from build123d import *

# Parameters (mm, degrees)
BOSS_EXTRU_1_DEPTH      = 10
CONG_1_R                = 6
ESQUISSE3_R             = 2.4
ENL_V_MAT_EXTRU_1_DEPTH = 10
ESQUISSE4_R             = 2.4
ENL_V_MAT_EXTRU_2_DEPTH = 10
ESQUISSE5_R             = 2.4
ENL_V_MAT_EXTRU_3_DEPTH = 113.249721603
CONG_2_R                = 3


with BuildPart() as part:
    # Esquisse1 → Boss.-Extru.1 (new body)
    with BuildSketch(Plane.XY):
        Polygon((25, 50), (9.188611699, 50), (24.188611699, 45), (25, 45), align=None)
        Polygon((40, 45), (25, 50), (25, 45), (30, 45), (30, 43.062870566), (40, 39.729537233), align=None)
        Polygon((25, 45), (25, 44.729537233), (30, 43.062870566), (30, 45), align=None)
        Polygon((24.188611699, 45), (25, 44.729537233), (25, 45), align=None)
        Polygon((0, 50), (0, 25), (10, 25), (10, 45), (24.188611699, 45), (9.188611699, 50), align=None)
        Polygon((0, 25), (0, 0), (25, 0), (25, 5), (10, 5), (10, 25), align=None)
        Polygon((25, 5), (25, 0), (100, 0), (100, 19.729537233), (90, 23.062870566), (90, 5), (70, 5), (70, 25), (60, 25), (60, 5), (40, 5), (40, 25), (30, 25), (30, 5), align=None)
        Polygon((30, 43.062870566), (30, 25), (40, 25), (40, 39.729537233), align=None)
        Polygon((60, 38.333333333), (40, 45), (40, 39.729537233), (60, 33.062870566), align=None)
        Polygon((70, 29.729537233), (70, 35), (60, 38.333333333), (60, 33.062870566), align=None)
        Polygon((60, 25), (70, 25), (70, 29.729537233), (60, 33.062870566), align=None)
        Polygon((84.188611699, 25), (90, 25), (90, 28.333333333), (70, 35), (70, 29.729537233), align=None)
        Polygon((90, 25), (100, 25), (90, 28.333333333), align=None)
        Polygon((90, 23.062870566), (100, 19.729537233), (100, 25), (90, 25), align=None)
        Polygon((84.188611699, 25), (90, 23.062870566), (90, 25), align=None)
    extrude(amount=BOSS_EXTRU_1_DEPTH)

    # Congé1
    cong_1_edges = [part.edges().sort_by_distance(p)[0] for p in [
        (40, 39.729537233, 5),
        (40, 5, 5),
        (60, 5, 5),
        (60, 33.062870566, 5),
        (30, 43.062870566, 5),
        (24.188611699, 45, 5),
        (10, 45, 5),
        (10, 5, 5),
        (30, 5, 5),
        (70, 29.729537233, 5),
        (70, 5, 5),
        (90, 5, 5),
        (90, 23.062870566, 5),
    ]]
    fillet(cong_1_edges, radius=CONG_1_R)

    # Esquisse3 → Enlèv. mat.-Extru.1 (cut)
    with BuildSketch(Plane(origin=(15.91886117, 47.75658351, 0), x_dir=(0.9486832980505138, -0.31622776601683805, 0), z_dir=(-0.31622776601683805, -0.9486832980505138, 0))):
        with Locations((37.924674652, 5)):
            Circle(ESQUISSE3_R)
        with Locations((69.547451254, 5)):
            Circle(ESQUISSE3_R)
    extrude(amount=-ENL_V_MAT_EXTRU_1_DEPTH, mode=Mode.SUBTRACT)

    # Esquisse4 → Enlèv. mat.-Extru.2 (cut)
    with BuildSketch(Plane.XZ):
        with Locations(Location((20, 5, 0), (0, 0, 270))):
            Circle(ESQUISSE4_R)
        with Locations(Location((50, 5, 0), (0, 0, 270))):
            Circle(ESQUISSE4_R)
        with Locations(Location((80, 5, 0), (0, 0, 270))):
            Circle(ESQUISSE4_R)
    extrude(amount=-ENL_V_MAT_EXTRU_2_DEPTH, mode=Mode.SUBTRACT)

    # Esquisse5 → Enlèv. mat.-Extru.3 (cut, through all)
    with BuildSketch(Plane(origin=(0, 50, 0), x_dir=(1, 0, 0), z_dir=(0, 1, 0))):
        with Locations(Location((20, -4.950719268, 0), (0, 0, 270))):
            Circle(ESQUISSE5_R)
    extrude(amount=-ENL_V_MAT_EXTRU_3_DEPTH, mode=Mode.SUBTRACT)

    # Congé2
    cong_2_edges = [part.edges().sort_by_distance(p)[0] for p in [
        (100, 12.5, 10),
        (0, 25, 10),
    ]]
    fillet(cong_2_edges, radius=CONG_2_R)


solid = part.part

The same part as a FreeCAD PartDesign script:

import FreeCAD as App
import Part
import Sketcher
from FreeCAD import Vector
Q = App.Units.Quantity


def edges_at(feature, points):
    """Names of the edges that pass closest to the given points."""
    edges = feature.Shape.Edges
    near = lambda p: min(range(len(edges)), key=lambda i: edges[i].distToShape(Part.Vertex(*p))[0])
    return sorted({f"Edge{near(p) + 1}" for p in points})

doc = App.newDocument("Part")
body = doc.addObject("PartDesign::Body", "Body")

# Sketch on XY plane
sketch1 = doc.addObject("Sketcher::SketchObject", "Sketch")
body.addObject(sketch1)
sketch1.AttachmentSupport = (doc.XY_Plane, [""])
sketch1.MapMode = "FlatFace"
sketch1.addGeometry(Part.LineSegment(Vector(25, 50, 0), Vector(0, 50, 0)), False)
sketch1.addGeometry(Part.LineSegment(Vector(0, 50, 0), Vector(0, 0, 0)), False)
sketch1.addGeometry(Part.LineSegment(Vector(0, 0, 0), Vector(100, 0, 0)), False)
sketch1.addGeometry(Part.LineSegment(Vector(100, 0, 0), Vector(100, 25, 0)), False)
sketch1.addGeometry(Part.LineSegment(Vector(100, 25, 0), Vector(90, 28.333333, 0)), False)
sketch1.addGeometry(Part.LineSegment(Vector(90, 28.333333, 0), Vector(70, 35, 0)), False)
sketch1.addGeometry(Part.LineSegment(Vector(70, 35, 0), Vector(60, 38.333333, 0)), False)
sketch1.addGeometry(Part.LineSegment(Vector(60, 38.333333, 0), Vector(40, 45, 0)), False)
sketch1.addGeometry(Part.LineSegment(Vector(40, 45, 0), Vector(25, 50, 0)), False)
sketch1.addGeometry(Part.LineSegment(Vector(90, 5, 0), Vector(70, 5, 0)), False)
sketch1.addGeometry(Part.LineSegment(Vector(70, 5, 0), Vector(70, 29.729537, 0)), False)
sketch1.addGeometry(Part.LineSegment(Vector(70, 29.729537, 0), Vector(84.188612, 25, 0)), False)
sketch1.addGeometry(Part.LineSegment(Vector(84.188612, 25, 0), Vector(90, 23.062871, 0)), False)
sketch1.addGeometry(Part.LineSegment(Vector(90, 23.062871, 0), Vector(90, 5, 0)), False)
sketch1.addGeometry(Part.LineSegment(Vector(60, 5, 0), Vector(40, 5, 0)), False)
sketch1.addGeometry(Part.LineSegment(Vector(40, 5, 0), Vector(40, 39.729537, 0)), False)
sketch1.addGeometry(Part.LineSegment(Vector(40, 39.729537, 0), Vector(60, 33.062871, 0)), False)
sketch1.addGeometry(Part.LineSegment(Vector(60, 33.062871, 0), Vector(60, 5, 0)), False)
sketch1.addGeometry(Part.LineSegment(Vector(30, 5, 0), Vector(10, 5, 0)), False)
sketch1.addGeometry(Part.LineSegment(Vector(10, 5, 0), Vector(10, 45, 0)), False)
sketch1.addGeometry(Part.LineSegment(Vector(10, 45, 0), Vector(24.188612, 45, 0)), False)
sketch1.addGeometry(Part.LineSegment(Vector(24.188612, 45, 0), Vector(25, 44.729537, 0)), False)
sketch1.addGeometry(Part.LineSegment(Vector(25, 44.729537, 0), Vector(30, 43.062871, 0)), False)
sketch1.addGeometry(Part.LineSegment(Vector(30, 43.062871, 0), Vector(30, 5, 0)), False)
sketch1.addConstraint(Sketcher.Constraint("Coincident", 0, 2, 1, 1))
sketch1.addConstraint(Sketcher.Constraint("Coincident", 1, 2, 2, 1))
sketch1.addConstraint(Sketcher.Constraint("Coincident", 2, 2, 3, 1))
sketch1.addConstraint(Sketcher.Constraint("Coincident", 3, 2, 4, 1))
sketch1.addConstraint(Sketcher.Constraint("Coincident", 4, 2, 5, 1))
sketch1.addConstraint(Sketcher.Constraint("Coincident", 5, 2, 6, 1))
sketch1.addConstraint(Sketcher.Constraint("Coincident", 6, 2, 7, 1))
sketch1.addConstraint(Sketcher.Constraint("Coincident", 7, 2, 8, 1))
sketch1.addConstraint(Sketcher.Constraint("Coincident", 8, 2, 0, 1))
sketch1.addConstraint(Sketcher.Constraint("Coincident", 9, 2, 10, 1))
sketch1.addConstraint(Sketcher.Constraint("Coincident", 10, 2, 11, 1))
sketch1.addConstraint(Sketcher.Constraint("Coincident", 11, 2, 12, 1))
sketch1.addConstraint(Sketcher.Constraint("Coincident", 12, 2, 13, 1))
sketch1.addConstraint(Sketcher.Constraint("Coincident", 13, 2, 9, 1))
sketch1.addConstraint(Sketcher.Constraint("Coincident", 14, 2, 15, 1))
sketch1.addConstraint(Sketcher.Constraint("Coincident", 15, 2, 16, 1))
sketch1.addConstraint(Sketcher.Constraint("Coincident", 16, 2, 17, 1))
sketch1.addConstraint(Sketcher.Constraint("Coincident", 17, 2, 14, 1))
sketch1.addConstraint(Sketcher.Constraint("Coincident", 18, 2, 19, 1))
sketch1.addConstraint(Sketcher.Constraint("Coincident", 19, 2, 20, 1))
sketch1.addConstraint(Sketcher.Constraint("Coincident", 20, 2, 21, 1))
sketch1.addConstraint(Sketcher.Constraint("Coincident", 21, 2, 22, 1))
sketch1.addConstraint(Sketcher.Constraint("Coincident", 22, 2, 23, 1))
sketch1.addConstraint(Sketcher.Constraint("Coincident", 23, 2, 18, 1))
sketch1.addConstraint(Sketcher.Constraint("Horizontal", 0))
sketch1.addConstraint(Sketcher.Constraint("Vertical", 1))
sketch1.addConstraint(Sketcher.Constraint("Horizontal", 2))
sketch1.addConstraint(Sketcher.Constraint("Vertical", 3))
sketch1.addConstraint(Sketcher.Constraint("Horizontal", 9))
sketch1.addConstraint(Sketcher.Constraint("Vertical", 10))
sketch1.addConstraint(Sketcher.Constraint("Vertical", 13))
sketch1.addConstraint(Sketcher.Constraint("Horizontal", 14))
sketch1.addConstraint(Sketcher.Constraint("Vertical", 15))
sketch1.addConstraint(Sketcher.Constraint("Vertical", 17))
sketch1.addConstraint(Sketcher.Constraint("Horizontal", 18))
sketch1.addConstraint(Sketcher.Constraint("Vertical", 19))
sketch1.addConstraint(Sketcher.Constraint("Horizontal", 20))
sketch1.addConstraint(Sketcher.Constraint("Vertical", 23))
sketch1.addConstraint(Sketcher.Constraint("Coincident", 1, 2, -1, 1))
sketch1.addConstraint(Sketcher.Constraint("Parallel", 4, 5))
sketch1.addConstraint(Sketcher.Constraint("Parallel", 5, 6))
sketch1.addConstraint(Sketcher.Constraint("Parallel", 6, 7))
sketch1.addConstraint(Sketcher.Constraint("Parallel", 7, 8))
sketch1.addConstraint(Sketcher.Constraint("Parallel", 8, 11))
sketch1.addConstraint(Sketcher.Constraint("Parallel", 11, 12))
sketch1.addConstraint(Sketcher.Constraint("Parallel", 12, 16))
sketch1.addConstraint(Sketcher.Constraint("Parallel", 16, 21))
sketch1.addConstraint(Sketcher.Constraint("Parallel", 21, 22))
sketch1.addConstraint(Sketcher.Constraint("Horizontal", 3, 2, 11, 2))
sketch1.addConstraint(Sketcher.Constraint("Horizontal", 13, 2, 14, 2))
sketch1.addConstraint(Sketcher.Constraint("Horizontal", 17, 2, 18, 2))
sketch1.addConstraint(Sketcher.Constraint("Horizontal", 7, 2, 19, 2))
sketch1.addConstraint(Sketcher.Constraint("Vertical", 5, 2, 9, 2))
sketch1.addConstraint(Sketcher.Constraint("Vertical", 4, 2, 12, 2))
sketch1.addConstraint(Sketcher.Constraint("Vertical", 7, 2, 14, 2))
sketch1.addConstraint(Sketcher.Constraint("Vertical", 6, 2, 16, 2))
sketch1.addConstraint(Sketcher.Constraint("Vertical", 8, 2, 21, 2))
sketch1.addConstraint(Sketcher.Constraint("Equal", 9, 14))
sketch1.addConstraint(Sketcher.Constraint("Equal", 14, 18))
sketch1.addConstraint(Sketcher.Constraint("Equal", 0, 3))
sketch1.addConstraint(Sketcher.Constraint("Equal", 4, 6))
sketch1.addConstraint(Sketcher.Constraint("DistanceX", 0, 2, 0, 1, Q("25 mm")))
sketch1.addConstraint(Sketcher.Constraint("DistanceX", 2, 1, 2, 2, Q("100 mm")))
sketch1.addConstraint(Sketcher.Constraint("DistanceX", 9, 2, 9, 1, Q("20 mm")))
sketch1.addConstraint(Sketcher.Constraint("DistanceY", 1, 2, 1, 1, Q("50 mm")))
sketch1.addConstraint(Sketcher.Constraint("DistanceY", 19, 1, 19, 2, Q("40 mm")))
sketch1.addConstraint(Sketcher.Constraint("DistanceX", -1, 1, 4, 2, Q("90 mm")))
sketch1.addConstraint(Sketcher.Constraint("DistanceX", -1, 1, 18, 2, Q("10 mm")))
sketch1.addConstraint(Sketcher.Constraint("DistanceY", 10, 2, 15, 2, Q("10 mm")))
sketch1.addConstraint(Sketcher.Constraint("DistanceY", 15, 2, 21, 2, Q("5 mm")))
sketch1.addConstraint(Sketcher.Constraint("DistanceX", 20, 1, 20, 2, Q("14.188612 mm")))
pad1 = doc.addObject("PartDesign::Pad", "Pad")
body.addObject(pad1)
pad1.Profile = sketch1
pad1.Length = 10
doc.recompute()

fillet = doc.addObject("PartDesign::Fillet", "Fillet")
body.addObject(fillet)
fillet.Base = (pad1, edges_at(pad1, [
    (40, 39.73, 5),
    (40, 5, 5),
    (60, 5, 5),
    (60, 33.063, 5),
    (30, 43.063, 5),
    (24.189, 45, 5),
    (10, 45, 5),
    (10, 5, 5),
    (30, 5, 5),
    (70, 29.73, 5),
    (70, 5, 5),
    (90, 5, 5),
    (90, 23.063, 5),
]))
fillet.Radius = 6

# Sketch on an angled plane
sketch2 = doc.addObject("Sketcher::SketchObject", "Sketch001")
body.addObject(sketch2)
sketch2.Placement = App.Placement(Vector(15.918861, 47.756584, 0), App.Rotation(Vector(0.948683298, -0.316227766, 0), Vector(0, 0, 1), Vector(-0.316227766, -0.948683298, 0), "ZXY"))
sketch2.addGeometry(Part.Circle(Vector(37.924675, 5, 0), Vector(0, 0, 1), 2.4), False)
sketch2.addGeometry(Part.Circle(Vector(69.547451, 5, 0), Vector(0, 0, 1), 2.4), False)
sketch2.addConstraint(Sketcher.Constraint("Equal", 0, 1))
sketch2.addConstraint(Sketcher.Constraint("Horizontal", 0, 3, 1, 3))
sketch2.addConstraint(Sketcher.Constraint("Diameter", 0, Q("4.8 mm")))
sketch2.addConstraint(Sketcher.Constraint("DistanceY", -1, 1, 0, 3, Q("5 mm")))
sketch2.addConstraint(Sketcher.Constraint("DistanceX", -1, 1, 1, 3, Q("69.547451 mm")))
sketch2.addConstraint(Sketcher.Constraint("DistanceX", -1, 1, 0, 3, Q("37.924675 mm")))
pocket1 = doc.addObject("PartDesign::Pocket", "Pocket")
body.addObject(pocket1)
pocket1.Profile = sketch2
pocket1.Length = 10

# Sketch on XZ plane
sketch3 = doc.addObject("Sketcher::SketchObject", "Sketch002")
body.addObject(sketch3)
sketch3.AttachmentSupport = (doc.XZ_Plane, [""])
sketch3.MapMode = "FlatFace"
sketch3.addGeometry(Part.Circle(Vector(20, 5, 0), Vector(0, 0, 1), 2.4), False)
sketch3.addGeometry(Part.Circle(Vector(50, 5, 0), Vector(0, 0, 1), 2.4), False)
sketch3.addGeometry(Part.Circle(Vector(80, 5, 0), Vector(0, 0, 1), 2.4), False)
sketch3.addConstraint(Sketcher.Constraint("Equal", 0, 1))
sketch3.addConstraint(Sketcher.Constraint("Equal", 1, 2))
sketch3.addConstraint(Sketcher.Constraint("Horizontal", 0, 3, 1, 3))
sketch3.addConstraint(Sketcher.Constraint("Horizontal", 1, 3, 2, 3))
sketch3.addConstraint(Sketcher.Constraint("Diameter", 0, Q("4.8 mm")))
sketch3.addConstraint(Sketcher.Constraint("DistanceX", -1, 1, 0, 3, Q("20 mm")))
sketch3.addConstraint(Sketcher.Constraint("DistanceY", -1, 1, 0, 3, Q("5 mm")))
sketch3.addConstraint(Sketcher.Constraint("DistanceX", -1, 1, 1, 3, Q("50 mm")))
sketch3.addConstraint(Sketcher.Constraint("DistanceX", -1, 1, 2, 3, Q("80 mm")))
pocket2 = doc.addObject("PartDesign::Pocket", "Pocket001")
body.addObject(pocket2)
pocket2.Profile = sketch3
pocket2.Length = 10

# Sketch on XZ plane
sketch4 = doc.addObject("Sketcher::SketchObject", "Sketch003")
body.addObject(sketch4)
sketch4.AttachmentSupport = (doc.XZ_Plane, [""])
sketch4.MapMode = "FlatFace"
sketch4.AttachmentOffset = App.Placement(Vector(0, 0, -50), App.Rotation())
sketch4.addGeometry(Part.Circle(Vector(20, 4.950719, 0), Vector(0, 0, 1), 2.4), False)
sketch4.addConstraint(Sketcher.Constraint("Diameter", 0, Q("4.8 mm")))
sketch4.addConstraint(Sketcher.Constraint("DistanceX", -1, 1, 0, 3, Q("20 mm")))
sketch4.addConstraint(Sketcher.Constraint("DistanceY", -1, 1, 0, 3, Q("4.950719 mm")))
pocket3 = doc.addObject("PartDesign::Pocket", "Pocket002")
body.addObject(pocket3)
pocket3.Profile = sketch4
pocket3.Type = "ThroughAll"
pocket3.Reversed = True
doc.recompute()

fillet2 = doc.addObject("PartDesign::Fillet", "Fillet001")
body.addObject(fillet2)
fillet2.Base = (pocket3, edges_at(pocket3, [(100, 12.5, 10), (0, 25, 10)]))
fillet2.Radius = 3

doc.recompute()
